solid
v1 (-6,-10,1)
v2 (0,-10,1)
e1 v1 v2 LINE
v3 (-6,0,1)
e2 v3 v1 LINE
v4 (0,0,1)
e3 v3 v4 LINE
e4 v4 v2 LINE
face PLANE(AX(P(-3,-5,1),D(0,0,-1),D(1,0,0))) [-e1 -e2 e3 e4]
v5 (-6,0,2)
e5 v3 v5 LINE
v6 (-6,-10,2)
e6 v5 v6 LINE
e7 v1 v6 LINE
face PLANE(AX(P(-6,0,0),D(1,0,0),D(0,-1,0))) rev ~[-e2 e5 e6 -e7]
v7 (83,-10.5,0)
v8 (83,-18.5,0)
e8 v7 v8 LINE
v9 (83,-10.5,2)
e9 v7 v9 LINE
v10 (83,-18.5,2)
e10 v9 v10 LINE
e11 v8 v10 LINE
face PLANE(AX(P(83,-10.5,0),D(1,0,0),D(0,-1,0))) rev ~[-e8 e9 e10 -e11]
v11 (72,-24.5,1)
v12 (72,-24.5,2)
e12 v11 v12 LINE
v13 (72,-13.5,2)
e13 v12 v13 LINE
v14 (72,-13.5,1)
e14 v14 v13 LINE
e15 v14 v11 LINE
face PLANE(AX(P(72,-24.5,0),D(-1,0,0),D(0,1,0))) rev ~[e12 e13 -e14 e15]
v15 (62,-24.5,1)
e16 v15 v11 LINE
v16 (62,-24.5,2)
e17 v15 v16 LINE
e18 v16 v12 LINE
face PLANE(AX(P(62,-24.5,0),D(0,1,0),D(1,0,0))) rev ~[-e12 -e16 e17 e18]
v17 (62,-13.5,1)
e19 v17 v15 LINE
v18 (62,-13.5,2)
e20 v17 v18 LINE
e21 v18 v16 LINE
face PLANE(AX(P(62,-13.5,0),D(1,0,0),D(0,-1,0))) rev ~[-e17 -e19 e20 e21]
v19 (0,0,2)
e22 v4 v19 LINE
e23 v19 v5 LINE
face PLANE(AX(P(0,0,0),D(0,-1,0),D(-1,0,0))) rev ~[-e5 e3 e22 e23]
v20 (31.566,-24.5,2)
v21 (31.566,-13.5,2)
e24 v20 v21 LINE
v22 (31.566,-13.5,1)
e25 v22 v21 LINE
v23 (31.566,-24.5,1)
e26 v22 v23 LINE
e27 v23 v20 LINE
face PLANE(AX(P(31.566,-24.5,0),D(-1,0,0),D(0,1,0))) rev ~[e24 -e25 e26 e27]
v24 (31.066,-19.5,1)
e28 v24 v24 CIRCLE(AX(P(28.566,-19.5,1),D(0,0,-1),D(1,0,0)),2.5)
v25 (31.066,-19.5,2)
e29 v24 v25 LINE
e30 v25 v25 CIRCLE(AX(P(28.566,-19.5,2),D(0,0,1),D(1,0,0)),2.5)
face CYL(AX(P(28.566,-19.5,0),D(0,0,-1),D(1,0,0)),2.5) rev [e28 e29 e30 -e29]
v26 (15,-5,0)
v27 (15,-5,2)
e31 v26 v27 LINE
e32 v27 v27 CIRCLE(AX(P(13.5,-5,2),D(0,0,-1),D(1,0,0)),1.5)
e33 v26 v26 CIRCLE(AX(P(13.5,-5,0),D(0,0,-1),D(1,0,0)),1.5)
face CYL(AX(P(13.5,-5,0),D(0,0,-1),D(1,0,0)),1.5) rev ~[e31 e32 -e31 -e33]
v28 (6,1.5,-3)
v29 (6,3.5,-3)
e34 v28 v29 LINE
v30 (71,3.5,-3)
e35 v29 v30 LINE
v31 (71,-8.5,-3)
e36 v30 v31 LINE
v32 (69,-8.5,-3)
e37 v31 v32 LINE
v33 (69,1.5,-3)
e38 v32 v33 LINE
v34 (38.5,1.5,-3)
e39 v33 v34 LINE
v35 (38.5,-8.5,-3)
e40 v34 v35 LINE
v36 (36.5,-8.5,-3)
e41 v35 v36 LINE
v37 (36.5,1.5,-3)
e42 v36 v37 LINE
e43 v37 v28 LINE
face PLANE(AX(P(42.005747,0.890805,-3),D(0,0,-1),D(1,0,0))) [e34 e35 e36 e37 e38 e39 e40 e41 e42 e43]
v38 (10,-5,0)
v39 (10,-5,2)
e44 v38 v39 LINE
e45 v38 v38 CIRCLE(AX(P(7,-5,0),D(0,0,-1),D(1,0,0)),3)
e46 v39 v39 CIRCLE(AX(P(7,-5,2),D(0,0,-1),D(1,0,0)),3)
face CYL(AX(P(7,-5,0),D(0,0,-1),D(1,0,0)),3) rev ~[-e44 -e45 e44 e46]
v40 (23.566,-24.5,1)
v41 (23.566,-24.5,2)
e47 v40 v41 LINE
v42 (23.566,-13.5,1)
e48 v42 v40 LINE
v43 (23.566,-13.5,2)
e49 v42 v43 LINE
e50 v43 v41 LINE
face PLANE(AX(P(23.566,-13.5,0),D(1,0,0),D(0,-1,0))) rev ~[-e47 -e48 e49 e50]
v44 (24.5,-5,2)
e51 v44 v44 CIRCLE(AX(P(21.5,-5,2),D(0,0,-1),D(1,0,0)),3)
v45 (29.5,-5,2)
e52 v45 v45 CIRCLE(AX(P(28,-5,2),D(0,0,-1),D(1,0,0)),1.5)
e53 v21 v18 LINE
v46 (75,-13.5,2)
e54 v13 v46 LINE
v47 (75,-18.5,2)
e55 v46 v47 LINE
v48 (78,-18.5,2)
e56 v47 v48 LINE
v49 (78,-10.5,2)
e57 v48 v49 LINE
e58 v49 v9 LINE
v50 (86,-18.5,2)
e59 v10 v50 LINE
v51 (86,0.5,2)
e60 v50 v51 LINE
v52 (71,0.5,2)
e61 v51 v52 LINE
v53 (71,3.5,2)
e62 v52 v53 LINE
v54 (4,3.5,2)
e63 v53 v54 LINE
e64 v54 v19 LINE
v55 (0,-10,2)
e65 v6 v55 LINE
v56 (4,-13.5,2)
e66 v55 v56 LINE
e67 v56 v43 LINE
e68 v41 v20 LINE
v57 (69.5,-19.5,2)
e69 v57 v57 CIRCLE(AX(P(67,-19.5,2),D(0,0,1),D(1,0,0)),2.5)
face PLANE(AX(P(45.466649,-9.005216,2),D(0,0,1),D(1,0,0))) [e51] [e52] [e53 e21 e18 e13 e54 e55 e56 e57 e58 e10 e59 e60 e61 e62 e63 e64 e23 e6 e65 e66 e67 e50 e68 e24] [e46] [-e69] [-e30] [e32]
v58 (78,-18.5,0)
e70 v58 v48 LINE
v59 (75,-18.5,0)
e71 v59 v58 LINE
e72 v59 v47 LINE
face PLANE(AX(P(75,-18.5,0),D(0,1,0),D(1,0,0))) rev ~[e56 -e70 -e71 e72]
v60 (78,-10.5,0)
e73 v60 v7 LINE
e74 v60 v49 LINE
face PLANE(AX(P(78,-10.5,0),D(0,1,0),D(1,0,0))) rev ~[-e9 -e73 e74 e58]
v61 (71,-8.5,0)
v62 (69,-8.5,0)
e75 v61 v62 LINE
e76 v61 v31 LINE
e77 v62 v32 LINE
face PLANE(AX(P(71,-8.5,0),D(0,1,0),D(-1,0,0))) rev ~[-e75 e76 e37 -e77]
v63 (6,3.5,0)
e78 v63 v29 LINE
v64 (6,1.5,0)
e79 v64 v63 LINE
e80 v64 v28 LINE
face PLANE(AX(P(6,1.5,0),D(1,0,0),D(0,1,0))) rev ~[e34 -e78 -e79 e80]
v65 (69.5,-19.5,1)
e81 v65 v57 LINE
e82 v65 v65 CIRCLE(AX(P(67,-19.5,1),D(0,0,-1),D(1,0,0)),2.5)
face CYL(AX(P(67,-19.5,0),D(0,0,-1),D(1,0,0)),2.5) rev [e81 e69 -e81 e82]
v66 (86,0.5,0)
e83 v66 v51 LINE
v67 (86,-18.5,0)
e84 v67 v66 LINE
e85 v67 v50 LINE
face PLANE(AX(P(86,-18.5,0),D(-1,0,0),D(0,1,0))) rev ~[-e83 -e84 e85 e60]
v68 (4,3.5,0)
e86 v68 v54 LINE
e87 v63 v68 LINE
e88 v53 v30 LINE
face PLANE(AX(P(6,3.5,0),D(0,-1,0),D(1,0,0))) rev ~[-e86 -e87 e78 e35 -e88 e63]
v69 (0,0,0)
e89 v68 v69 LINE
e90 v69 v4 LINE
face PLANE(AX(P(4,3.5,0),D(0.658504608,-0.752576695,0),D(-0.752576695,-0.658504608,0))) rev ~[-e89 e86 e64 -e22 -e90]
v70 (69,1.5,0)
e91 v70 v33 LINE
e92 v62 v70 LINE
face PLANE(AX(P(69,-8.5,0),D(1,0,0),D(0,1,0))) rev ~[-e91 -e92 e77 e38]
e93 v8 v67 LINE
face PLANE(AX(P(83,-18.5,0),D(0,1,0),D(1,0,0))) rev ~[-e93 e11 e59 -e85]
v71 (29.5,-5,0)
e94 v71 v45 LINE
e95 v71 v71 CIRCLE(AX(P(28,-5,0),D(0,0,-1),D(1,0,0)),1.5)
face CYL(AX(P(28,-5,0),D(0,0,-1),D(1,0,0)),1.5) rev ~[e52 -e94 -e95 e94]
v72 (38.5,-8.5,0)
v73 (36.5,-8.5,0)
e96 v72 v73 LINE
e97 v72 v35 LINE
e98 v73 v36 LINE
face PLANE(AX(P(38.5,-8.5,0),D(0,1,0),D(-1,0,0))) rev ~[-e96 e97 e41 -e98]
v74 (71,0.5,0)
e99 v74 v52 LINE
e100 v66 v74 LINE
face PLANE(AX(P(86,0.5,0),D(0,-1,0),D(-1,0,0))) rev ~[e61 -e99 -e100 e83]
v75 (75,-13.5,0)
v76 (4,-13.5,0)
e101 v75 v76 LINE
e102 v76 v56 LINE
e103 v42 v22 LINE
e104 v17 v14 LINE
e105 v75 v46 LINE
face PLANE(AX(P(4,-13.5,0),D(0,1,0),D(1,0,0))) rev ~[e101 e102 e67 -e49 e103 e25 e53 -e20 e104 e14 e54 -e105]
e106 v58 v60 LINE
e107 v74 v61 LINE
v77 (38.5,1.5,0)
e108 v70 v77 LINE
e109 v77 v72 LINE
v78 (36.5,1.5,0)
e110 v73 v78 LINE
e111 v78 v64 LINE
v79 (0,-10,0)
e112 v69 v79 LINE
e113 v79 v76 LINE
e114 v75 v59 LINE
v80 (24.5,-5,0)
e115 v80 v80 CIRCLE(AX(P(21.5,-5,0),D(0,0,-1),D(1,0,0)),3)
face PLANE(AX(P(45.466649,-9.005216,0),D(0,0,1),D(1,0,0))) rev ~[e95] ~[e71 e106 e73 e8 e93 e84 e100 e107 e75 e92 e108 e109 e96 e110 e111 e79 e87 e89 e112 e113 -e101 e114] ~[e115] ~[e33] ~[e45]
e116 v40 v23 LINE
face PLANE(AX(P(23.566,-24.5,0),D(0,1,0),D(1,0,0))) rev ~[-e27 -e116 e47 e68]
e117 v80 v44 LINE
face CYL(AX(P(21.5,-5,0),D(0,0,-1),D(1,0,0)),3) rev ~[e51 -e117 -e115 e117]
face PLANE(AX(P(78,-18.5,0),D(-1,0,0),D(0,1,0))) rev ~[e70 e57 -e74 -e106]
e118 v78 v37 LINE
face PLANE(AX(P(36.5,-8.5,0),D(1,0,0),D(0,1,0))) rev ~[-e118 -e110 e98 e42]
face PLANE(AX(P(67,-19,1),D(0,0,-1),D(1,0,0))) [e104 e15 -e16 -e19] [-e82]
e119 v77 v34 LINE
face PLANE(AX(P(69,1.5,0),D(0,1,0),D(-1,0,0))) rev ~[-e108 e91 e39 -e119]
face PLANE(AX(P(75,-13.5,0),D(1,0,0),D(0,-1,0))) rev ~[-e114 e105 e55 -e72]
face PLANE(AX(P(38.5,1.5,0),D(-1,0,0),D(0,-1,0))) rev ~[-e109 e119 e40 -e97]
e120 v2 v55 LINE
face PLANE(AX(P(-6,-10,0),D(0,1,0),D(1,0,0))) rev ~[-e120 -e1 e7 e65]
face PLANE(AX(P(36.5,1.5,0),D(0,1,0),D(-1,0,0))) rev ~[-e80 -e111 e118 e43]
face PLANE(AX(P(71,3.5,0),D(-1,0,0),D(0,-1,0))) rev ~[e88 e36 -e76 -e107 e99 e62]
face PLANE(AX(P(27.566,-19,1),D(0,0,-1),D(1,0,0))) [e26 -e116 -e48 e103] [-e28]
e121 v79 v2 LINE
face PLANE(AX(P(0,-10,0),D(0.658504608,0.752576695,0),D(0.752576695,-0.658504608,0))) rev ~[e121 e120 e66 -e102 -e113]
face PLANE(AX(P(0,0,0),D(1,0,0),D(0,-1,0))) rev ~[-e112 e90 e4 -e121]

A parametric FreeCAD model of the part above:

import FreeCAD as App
import Part
import Sketcher

V = App.Vector

doc = App.newDocument("Part")
body = doc.addObject("PartDesign::Body", "Body")

# Sketch on XY plane
sketch1 = body.newObject("Sketcher::SketchObject", "Sketch")
sketch1.AttachmentSupport = (doc.getObject("XY_Plane"), [""])
sketch1.MapMode = "FlatFace"
sketch1.addGeometry([
    Part.LineSegment(V(0, 0, 0), V(-6, 0, 0)),  # 0
    Part.LineSegment(V(-6, 0, 0), V(-6, -10, 0)),  # 1
    Part.LineSegment(V(-6, -10, 0), V(0, -10, 0)),  # 2
    Part.LineSegment(V(0, -10, 0), V(4, -13.5, 0)),  # 3
    Part.LineSegment(V(4, -13.5, 0), V(23.566, -13.5, 0)),  # 4
    Part.LineSegment(V(23.566, -13.5, 0), V(23.566, -24.5, 0)),  # 5
    Part.LineSegment(V(23.566, -24.5, 0), V(31.566, -24.5, 0)),  # 6
    Part.LineSegment(V(31.566, -24.5, 0), V(31.566, -13.5, 0)),  # 7
    Part.LineSegment(V(31.566, -13.5, 0), V(62, -13.5, 0)),  # 8
    Part.LineSegment(V(62, -13.5, 0), V(62, -24.5, 0)),  # 9
    Part.LineSegment(V(62, -24.5, 0), V(72, -24.5, 0)),  # 10
    Part.LineSegment(V(72, -24.5, 0), V(72, -13.5, 0)),  # 11
    Part.LineSegment(V(72, -13.5, 0), V(75, -13.5, 0)),  # 12
    Part.LineSegment(V(75, -13.5, 0), V(75, -18.5, 0)),  # 13
    Part.LineSegment(V(75, -18.5, 0), V(78, -18.5, 0)),  # 14
    Part.LineSegment(V(78, -18.5, 0), V(78, -10.5, 0)),  # 15
    Part.LineSegment(V(78, -10.5, 0), V(83, -10.5, 0)),  # 16
    Part.LineSegment(V(83, -10.5, 0), V(83, -18.5, 0)),  # 17
    Part.LineSegment(V(83, -18.5, 0), V(86, -18.5, 0)),  # 18
    Part.LineSegment(V(86, -18.5, 0), V(86, 0.5, 0)),  # 19
    Part.LineSegment(V(86, 0.5, 0), V(71, 0.5, 0)),  # 20
    Part.LineSegment(V(71, 0.5, 0), V(71, 3.5, 0)),  # 21
    Part.LineSegment(V(71, 3.5, 0), V(4, 3.5, 0)),  # 22
    Part.LineSegment(V(4, 3.5, 0), V(0, 0, 0)),  # 23
    Part.Circle(V(28.566, -19.5, 0), V(0, 0, 1), 2.5),  # 24
    Part.Circle(V(67, -19.5, 0), V(0, 0, 1), 2.5),  # 25
], False)
sketch1.addConstraint([
    Sketcher.Constraint("Coincident", 0, 2, 1, 1),
    Sketcher.Constraint("Coincident", 1, 2, 2, 1),
    Sketcher.Constraint("Coincident", 2, 2, 3, 1),
    Sketcher.Constraint("Coincident", 3, 2, 4, 1),
    Sketcher.Constraint("Coincident", 4, 2, 5, 1),
    Sketcher.Constraint("Coincident", 5, 2, 6, 1),
    Sketcher.Constraint("Coincident", 6, 2, 7, 1),
    Sketcher.Constraint("Coincident", 7, 2, 8, 1),
    Sketcher.Constraint("Coincident", 8, 2, 9, 1),
    Sketcher.Constraint("Coincident", 9, 2, 10, 1),
    Sketcher.Constraint("Coincident", 10, 2, 11, 1),
    Sketcher.Constraint("Coincident", 11, 2, 12, 1),
    Sketcher.Constraint("Coincident", 12, 2, 13, 1),
    Sketcher.Constraint("Coincident", 13, 2, 14, 1),
    Sketcher.Constraint("Coincident", 14, 2, 15, 1),
    Sketcher.Constraint("Coincident", 15, 2, 16, 1),
    Sketcher.Constraint("Coincident", 16, 2, 17, 1),
    Sketcher.Constraint("Coincident", 17, 2, 18, 1),
    Sketcher.Constraint("Coincident", 18, 2, 19, 1),
    Sketcher.Constraint("Coincident", 19, 2, 20, 1),
    Sketcher.Constraint("Coincident", 20, 2, 21, 1),
    Sketcher.Constraint("Coincident", 21, 2, 22, 1),
    Sketcher.Constraint("Coincident", 22, 2, 23, 1),
    Sketcher.Constraint("Coincident", 23, 2, 0, 1),
    Sketcher.Constraint("Horizontal", 0),
    Sketcher.Constraint("Vertical", 1),
    Sketcher.Constraint("Horizontal", 2),
    Sketcher.Constraint("Horizontal", 4),
    Sketcher.Constraint("Vertical", 5),
    Sketcher.Constraint("Horizontal", 6),
    Sketcher.Constraint("Vertical", 7),
    Sketcher.Constraint("Horizontal", 8),
    Sketcher.Constraint("Vertical", 9),
    Sketcher.Constraint("Horizontal", 10),
    Sketcher.Constraint("Vertical", 11),
    Sketcher.Constraint("Horizontal", 12),
    Sketcher.Constraint("Vertical", 13),
    Sketcher.Constraint("Horizontal", 14),
    Sketcher.Constraint("Vertical", 15),
    Sketcher.Constraint("Horizontal", 16),
    Sketcher.Constraint("Vertical", 17),
    Sketcher.Constraint("Horizontal", 18),
    Sketcher.Constraint("Vertical", 19),
    Sketcher.Constraint("Horizontal", 20),
    Sketcher.Constraint("Vertical", 21),
    Sketcher.Constraint("Horizontal", 22),
    Sketcher.Constraint("Coincident", 23, 2, -1, 1),
    Sketcher.Constraint("Equal", 24, 25),
    Sketcher.Constraint("PointOnObject", 2, 2, -2),
    Sketcher.Constraint("Horizontal", 24, 3, 25, 3),
    Sketcher.Constraint("Horizontal", 4, 2, 7, 2),
    Sketcher.Constraint("Horizontal", 6, 2, 9, 2),
    Sketcher.Constraint("Horizontal", 8, 2, 11, 2),
    Sketcher.Constraint("Horizontal", 14, 2, 17, 2),
    Sketcher.Constraint("Vertical", 3, 2, 22, 2),
    Sketcher.Constraint("Equal", 12, 14),
    Sketcher.Constraint("Equal", 14, 18),
    Sketcher.Constraint("Equal", 10, 1),
    Sketcher.Constraint("Equal", 16, 13),
    Sketcher.Constraint("Equal", 6, 15),
    Sketcher.Constraint("Equal", 18, 21),
    Sketcher.Constraint("Equal", 3, 23),
    Sketcher.Constraint("Diameter", 24, 5.0),
    Sketcher.Constraint("DistanceX", 0, 2, 0, 1, 6.0),
    Sketcher.Constraint("DistanceX", 6, 1, 6, 2, 8.0),
    Sketcher.Constraint("DistanceX", 10, 1, 10, 2, 10.0),
    Sketcher.Constraint("DistanceX", 12, 1, 12, 2, 3.0),
    Sketcher.Constraint("DistanceX", 16, 1, 16, 2, 5.0),
    Sketcher.Constraint("DistanceX", 20, 2, 20, 1, 15.0),
    Sketcher.Constraint("DistanceX", 22, 2, 22, 1, 67.0),
    Sketcher.Constraint("DistanceY", 5, 2, 5, 1, 11.0),
    Sketcher.Constraint("DistanceY", 19, 1, 19, 2, 19.0),
    Sketcher.Constraint("DistanceX", -1, 1, 25, 3, 67.0),
    Sketcher.Constraint("DistanceX", -1, 1, 3, 2, 4.0),
    Sketcher.Constraint("DistanceY", 24, 3, 3, 2, 6.0),
    Sketcher.Constraint("DistanceX", 4, 2, 24, 3, 5.0),
    Sketcher.Constraint("DistanceX", 4, 1, 4, 2, 19.566),
])
pad1 = body.newObject("PartDesign::Pad", "Pad")
pad1.Profile = sketch1
pad1.Length = 2

# Sketch on XY plane
sketch2 = body.newObject("Sketcher::SketchObject", "Sketch001")
sketch2.AttachmentSupport = (doc.getObject("XY_Plane"), [""])
sketch2.MapMode = "FlatFace"
sketch2.addGeometry([
    Part.LineSegment(V(6, 3.5, 0), V(71, 3.5, 0)),  # 0
    Part.LineSegment(V(71, 3.5, 0), V(71, -8.5, 0)),  # 1
    Part.LineSegment(V(71, -8.5, 0), V(69, -8.5, 0)),  # 2
    Part.LineSegment(V(69, -8.5, 0), V(69, 1.5, 0)),  # 3
    Part.LineSegment(V(69, 1.5, 0), V(38.5, 1.5, 0)),  # 4
    Part.LineSegment(V(38.5, 1.5, 0), V(38.5, -8.5, 0)),  # 5
    Part.LineSegment(V(38.5, -8.5, 0), V(36.5, -8.5, 0)),  # 6
    Part.LineSegment(V(36.5, -8.5, 0), V(36.5, 1.5, 0)),  # 7
    Part.LineSegment(V(36.5, 1.5, 0), V(6, 1.5, 0)),  # 8
    Part.LineSegment(V(6, 1.5, 0), V(6, 3.5, 0)),  # 9
], False)
sketch2.addConstraint([
    Sketcher.Constraint("Coincident", 0, 2, 1, 1),
    Sketcher.Constraint("Coincident", 1, 2, 2, 1),
    Sketcher.Constraint("Coincident", 2, 2, 3, 1),
    Sketcher.Constraint("Coincident", 3, 2, 4, 1),
    Sketcher.Constraint("Coincident", 4, 2, 5, 1),
    Sketcher.Constraint("Coincident", 5, 2, 6, 1),
    Sketcher.Constraint("Coincident", 6, 2, 7, 1),
    Sketcher.Constraint("Coincident", 7, 2, 8, 1),
    Sketcher.Constraint("Coincident", 8, 2, 9, 1),
    Sketcher.Constraint("Coincident", 9, 2, 0, 1),
    Sketcher.Constraint("Horizontal", 0),
    Sketcher.Constraint("Vertical", 1),
    Sketcher.Constraint("Horizontal", 2),
    Sketcher.Constraint("Vertical", 3),
    Sketcher.Constraint("Horizontal", 4),
    Sketcher.Constraint("Vertical", 5),
    Sketcher.Constraint("Horizontal", 6),
    Sketcher.Constraint("Vertical", 7),
    Sketcher.Constraint("Horizontal", 8),
    Sketcher.Constraint("Vertical", 9),
    Sketcher.Constraint("Horizontal", 2, 2, 5, 2),
    Sketcher.Constraint("Horizontal", 4, 2, 7, 2),
    Sketcher.Constraint("Equal", 2, 6),
    Sketcher.Constraint("Equal", 4, 8),
    Sketcher.Constraint("Equal", 6, 9),
    Sketcher.Constraint("DistanceX", 0, 1, 0, 2, 65.0),
    Sketcher.Constraint("DistanceX", 2, 2, 2, 1, 2.0),
    Sketcher.Constraint("DistanceY", 1, 2, 1, 1, 12.0),
    Sketcher.Constraint("DistanceX", -1, 1, 0, 2, 71.0),
    Sketcher.Constraint("DistanceY", -1, 1, 0, 2, 3.5),
])
pad2 = body.newObject("PartDesign::Pad", "Pad001")
pad2.Profile = sketch2
pad2.Length = 3
pad2.Reversed = True

# Sketch on XY plane
sketch3 = body.newObject("Sketcher::SketchObject", "Sketch002")
sketch3.AttachmentSupport = (doc.getObject("XY_Plane"), [""])
sketch3.MapMode = "FlatFace"
sketch3.addGeometry([
    Part.LineSegment(V(-6, -10, 0), V(-6, 0, 0)),  # 0
    Part.LineSegment(V(-6, 0, 0), V(0, 0, 0)),  # 1
    Part.LineSegment(V(0, 0, 0), V(0, -10, 0)),  # 2
    Part.LineSegment(V(0, -10, 0), V(-6, -10, 0)),  # 3
    Part.LineSegment(V(23.566, -24.5, 0), V(23.566, -13.5, 0)),  # 4
    Part.LineSegment(V(23.566, -13.5, 0), V(31.566, -13.5, 0)),  # 5
    Part.LineSegment(V(31.566, -13.5, 0), V(31.566, -24.5, 0)),  # 6
    Part.LineSegment(V(31.566, -24.5, 0), V(23.566, -24.5, 0)),  # 7
    Part.LineSegment(V(62, -24.5, 0), V(62, -13.5, 0)),  # 8
    Part.LineSegment(V(62, -13.5, 0), V(72, -13.5, 0)),  # 9
    Part.LineSegment(V(72, -13.5, 0), V(72, -24.5, 0)),  # 10
    Part.LineSegment(V(72, -24.5, 0), V(62, -24.5, 0)),  # 11
], False)
sketch3.addConstraint([
    Sketcher.Constraint("Coincident", 0, 2, 1, 1),
    Sketcher.Constraint("Coincident", 1, 2, 2, 1),
    Sketcher.Constraint("Coincident", 2, 2, 3, 1),
    Sketcher.Constraint("Coincident", 3, 2, 0, 1),
    Sketcher.Constraint("Coincident", 4, 2, 5, 1),
    Sketcher.Constraint("Coincident", 5, 2, 6, 1),
    Sketcher.Constraint("Coincident", 6, 2, 7, 1),
    Sketcher.Constraint("Coincident", 7, 2, 4, 1),
    Sketcher.Constraint("Coincident", 8, 2, 9, 1),
    Sketcher.Constraint("Coincident", 9, 2, 10, 1),
    Sketcher.Constraint("Coincident", 10, 2, 11, 1),
    Sketcher.Constraint("Coincident", 11, 2, 8, 1),
    Sketcher.Constraint("Vertical", 0),
    Sketcher.Constraint("Horizontal", 1),
    Sketcher.Constraint("Vertical", 2),
    Sketcher.Constraint("Horizontal", 3),
    Sketcher.Constraint("Vertical", 4),
    Sketcher.Constraint("Horizontal", 5),
    Sketcher.Constraint("Vertical", 6),
    Sketcher.Constraint("Horizontal", 7),
    Sketcher.Constraint("Vertical", 8),
    Sketcher.Constraint("Horizontal", 9),
    Sketcher.Constraint("Vertical", 10),
    Sketcher.Constraint("Horizontal", 11),
    Sketcher.Constraint("Coincident", 1, 2, -1, 1),
    Sketcher.Constraint("Horizontal", 5, 2, 8, 2),
    Sketcher.Constraint("Horizontal", 7, 2, 10, 2),
    Sketcher.Constraint("Equal", 11, 0),
    Sketcher.Constraint("DistanceX", 1, 1, 1, 2, 6.0),
    Sketcher.Constraint("DistanceX", 5, 1, 5, 2, 8.0),
    Sketcher.Constraint("DistanceX", 9, 1, 9, 2, 10.0),
    Sketcher.Constraint("DistanceY", 4, 1, 4, 2, 11.0),
    Sketcher.Constraint("DistanceX", -1, 1, 8, 2, 62.0),
    Sketcher.Constraint("DistanceY", 4, 2, -1, 1, 13.5),
    Sketcher.Constraint("DistanceX", -1, 1, 4, 2, 23.566),
])
pocket1 = body.newObject("PartDesign::Pocket", "Pocket")
pocket1.Profile = sketch3
pocket1.Length = 1
pocket1.Reversed = True

# Sketch on XY plane
sketch4 = body.newObject("Sketcher::SketchObject", "Sketch003")
sketch4.AttachmentSupport = (doc.getObject("XY_Plane"), [""])
sketch4.MapMode = "FlatFace"
sketch4.addGeometry([
    Part.Circle(V(7, -5, 0), V(0, 0, 1), 3),
    Part.Circle(V(13.5, -5, 0), V(0, 0, 1), 1.5),
    Part.Circle(V(21.5, -5, 0), V(0, 0, 1), 3),
    Part.Circle(V(28, -5, 0), V(0, 0, 1), 1.5),
], False)
sketch4.addConstraint([
    Sketcher.Constraint("Equal", 0, 2),
    Sketcher.Constraint("Equal", 1, 3),
    Sketcher.Constraint("Horizontal", 0, 3, 1, 3),
    Sketcher.Constraint("Horizontal", 1, 3, 2, 3),
    Sketcher.Constraint("Horizontal", 2, 3, 3, 3),
    Sketcher.Constraint("Diameter", 0, 6.0),
    Sketcher.Constraint("Diameter", 1, 3.0),
    Sketcher.Constraint("DistanceX", -1, 1, 0, 3, 7.0),
    Sketcher.Constraint("DistanceY", 0, 3, -1, 1, 5.0),
    Sketcher.Constraint("DistanceX", -1, 1, 3, 3, 28.0),
    Sketcher.Constraint("DistanceX", 1, 3, 2, 3, 8.0),
    Sketcher.Constraint("DistanceX", -1, 1, 1, 3, 13.5),
])
pocket2 = body.newObject("PartDesign::Pocket", "Pocket001")
pocket2.Profile = sketch4
pocket2.Length = 5
pocket2.Reversed = True

doc.recompute()
